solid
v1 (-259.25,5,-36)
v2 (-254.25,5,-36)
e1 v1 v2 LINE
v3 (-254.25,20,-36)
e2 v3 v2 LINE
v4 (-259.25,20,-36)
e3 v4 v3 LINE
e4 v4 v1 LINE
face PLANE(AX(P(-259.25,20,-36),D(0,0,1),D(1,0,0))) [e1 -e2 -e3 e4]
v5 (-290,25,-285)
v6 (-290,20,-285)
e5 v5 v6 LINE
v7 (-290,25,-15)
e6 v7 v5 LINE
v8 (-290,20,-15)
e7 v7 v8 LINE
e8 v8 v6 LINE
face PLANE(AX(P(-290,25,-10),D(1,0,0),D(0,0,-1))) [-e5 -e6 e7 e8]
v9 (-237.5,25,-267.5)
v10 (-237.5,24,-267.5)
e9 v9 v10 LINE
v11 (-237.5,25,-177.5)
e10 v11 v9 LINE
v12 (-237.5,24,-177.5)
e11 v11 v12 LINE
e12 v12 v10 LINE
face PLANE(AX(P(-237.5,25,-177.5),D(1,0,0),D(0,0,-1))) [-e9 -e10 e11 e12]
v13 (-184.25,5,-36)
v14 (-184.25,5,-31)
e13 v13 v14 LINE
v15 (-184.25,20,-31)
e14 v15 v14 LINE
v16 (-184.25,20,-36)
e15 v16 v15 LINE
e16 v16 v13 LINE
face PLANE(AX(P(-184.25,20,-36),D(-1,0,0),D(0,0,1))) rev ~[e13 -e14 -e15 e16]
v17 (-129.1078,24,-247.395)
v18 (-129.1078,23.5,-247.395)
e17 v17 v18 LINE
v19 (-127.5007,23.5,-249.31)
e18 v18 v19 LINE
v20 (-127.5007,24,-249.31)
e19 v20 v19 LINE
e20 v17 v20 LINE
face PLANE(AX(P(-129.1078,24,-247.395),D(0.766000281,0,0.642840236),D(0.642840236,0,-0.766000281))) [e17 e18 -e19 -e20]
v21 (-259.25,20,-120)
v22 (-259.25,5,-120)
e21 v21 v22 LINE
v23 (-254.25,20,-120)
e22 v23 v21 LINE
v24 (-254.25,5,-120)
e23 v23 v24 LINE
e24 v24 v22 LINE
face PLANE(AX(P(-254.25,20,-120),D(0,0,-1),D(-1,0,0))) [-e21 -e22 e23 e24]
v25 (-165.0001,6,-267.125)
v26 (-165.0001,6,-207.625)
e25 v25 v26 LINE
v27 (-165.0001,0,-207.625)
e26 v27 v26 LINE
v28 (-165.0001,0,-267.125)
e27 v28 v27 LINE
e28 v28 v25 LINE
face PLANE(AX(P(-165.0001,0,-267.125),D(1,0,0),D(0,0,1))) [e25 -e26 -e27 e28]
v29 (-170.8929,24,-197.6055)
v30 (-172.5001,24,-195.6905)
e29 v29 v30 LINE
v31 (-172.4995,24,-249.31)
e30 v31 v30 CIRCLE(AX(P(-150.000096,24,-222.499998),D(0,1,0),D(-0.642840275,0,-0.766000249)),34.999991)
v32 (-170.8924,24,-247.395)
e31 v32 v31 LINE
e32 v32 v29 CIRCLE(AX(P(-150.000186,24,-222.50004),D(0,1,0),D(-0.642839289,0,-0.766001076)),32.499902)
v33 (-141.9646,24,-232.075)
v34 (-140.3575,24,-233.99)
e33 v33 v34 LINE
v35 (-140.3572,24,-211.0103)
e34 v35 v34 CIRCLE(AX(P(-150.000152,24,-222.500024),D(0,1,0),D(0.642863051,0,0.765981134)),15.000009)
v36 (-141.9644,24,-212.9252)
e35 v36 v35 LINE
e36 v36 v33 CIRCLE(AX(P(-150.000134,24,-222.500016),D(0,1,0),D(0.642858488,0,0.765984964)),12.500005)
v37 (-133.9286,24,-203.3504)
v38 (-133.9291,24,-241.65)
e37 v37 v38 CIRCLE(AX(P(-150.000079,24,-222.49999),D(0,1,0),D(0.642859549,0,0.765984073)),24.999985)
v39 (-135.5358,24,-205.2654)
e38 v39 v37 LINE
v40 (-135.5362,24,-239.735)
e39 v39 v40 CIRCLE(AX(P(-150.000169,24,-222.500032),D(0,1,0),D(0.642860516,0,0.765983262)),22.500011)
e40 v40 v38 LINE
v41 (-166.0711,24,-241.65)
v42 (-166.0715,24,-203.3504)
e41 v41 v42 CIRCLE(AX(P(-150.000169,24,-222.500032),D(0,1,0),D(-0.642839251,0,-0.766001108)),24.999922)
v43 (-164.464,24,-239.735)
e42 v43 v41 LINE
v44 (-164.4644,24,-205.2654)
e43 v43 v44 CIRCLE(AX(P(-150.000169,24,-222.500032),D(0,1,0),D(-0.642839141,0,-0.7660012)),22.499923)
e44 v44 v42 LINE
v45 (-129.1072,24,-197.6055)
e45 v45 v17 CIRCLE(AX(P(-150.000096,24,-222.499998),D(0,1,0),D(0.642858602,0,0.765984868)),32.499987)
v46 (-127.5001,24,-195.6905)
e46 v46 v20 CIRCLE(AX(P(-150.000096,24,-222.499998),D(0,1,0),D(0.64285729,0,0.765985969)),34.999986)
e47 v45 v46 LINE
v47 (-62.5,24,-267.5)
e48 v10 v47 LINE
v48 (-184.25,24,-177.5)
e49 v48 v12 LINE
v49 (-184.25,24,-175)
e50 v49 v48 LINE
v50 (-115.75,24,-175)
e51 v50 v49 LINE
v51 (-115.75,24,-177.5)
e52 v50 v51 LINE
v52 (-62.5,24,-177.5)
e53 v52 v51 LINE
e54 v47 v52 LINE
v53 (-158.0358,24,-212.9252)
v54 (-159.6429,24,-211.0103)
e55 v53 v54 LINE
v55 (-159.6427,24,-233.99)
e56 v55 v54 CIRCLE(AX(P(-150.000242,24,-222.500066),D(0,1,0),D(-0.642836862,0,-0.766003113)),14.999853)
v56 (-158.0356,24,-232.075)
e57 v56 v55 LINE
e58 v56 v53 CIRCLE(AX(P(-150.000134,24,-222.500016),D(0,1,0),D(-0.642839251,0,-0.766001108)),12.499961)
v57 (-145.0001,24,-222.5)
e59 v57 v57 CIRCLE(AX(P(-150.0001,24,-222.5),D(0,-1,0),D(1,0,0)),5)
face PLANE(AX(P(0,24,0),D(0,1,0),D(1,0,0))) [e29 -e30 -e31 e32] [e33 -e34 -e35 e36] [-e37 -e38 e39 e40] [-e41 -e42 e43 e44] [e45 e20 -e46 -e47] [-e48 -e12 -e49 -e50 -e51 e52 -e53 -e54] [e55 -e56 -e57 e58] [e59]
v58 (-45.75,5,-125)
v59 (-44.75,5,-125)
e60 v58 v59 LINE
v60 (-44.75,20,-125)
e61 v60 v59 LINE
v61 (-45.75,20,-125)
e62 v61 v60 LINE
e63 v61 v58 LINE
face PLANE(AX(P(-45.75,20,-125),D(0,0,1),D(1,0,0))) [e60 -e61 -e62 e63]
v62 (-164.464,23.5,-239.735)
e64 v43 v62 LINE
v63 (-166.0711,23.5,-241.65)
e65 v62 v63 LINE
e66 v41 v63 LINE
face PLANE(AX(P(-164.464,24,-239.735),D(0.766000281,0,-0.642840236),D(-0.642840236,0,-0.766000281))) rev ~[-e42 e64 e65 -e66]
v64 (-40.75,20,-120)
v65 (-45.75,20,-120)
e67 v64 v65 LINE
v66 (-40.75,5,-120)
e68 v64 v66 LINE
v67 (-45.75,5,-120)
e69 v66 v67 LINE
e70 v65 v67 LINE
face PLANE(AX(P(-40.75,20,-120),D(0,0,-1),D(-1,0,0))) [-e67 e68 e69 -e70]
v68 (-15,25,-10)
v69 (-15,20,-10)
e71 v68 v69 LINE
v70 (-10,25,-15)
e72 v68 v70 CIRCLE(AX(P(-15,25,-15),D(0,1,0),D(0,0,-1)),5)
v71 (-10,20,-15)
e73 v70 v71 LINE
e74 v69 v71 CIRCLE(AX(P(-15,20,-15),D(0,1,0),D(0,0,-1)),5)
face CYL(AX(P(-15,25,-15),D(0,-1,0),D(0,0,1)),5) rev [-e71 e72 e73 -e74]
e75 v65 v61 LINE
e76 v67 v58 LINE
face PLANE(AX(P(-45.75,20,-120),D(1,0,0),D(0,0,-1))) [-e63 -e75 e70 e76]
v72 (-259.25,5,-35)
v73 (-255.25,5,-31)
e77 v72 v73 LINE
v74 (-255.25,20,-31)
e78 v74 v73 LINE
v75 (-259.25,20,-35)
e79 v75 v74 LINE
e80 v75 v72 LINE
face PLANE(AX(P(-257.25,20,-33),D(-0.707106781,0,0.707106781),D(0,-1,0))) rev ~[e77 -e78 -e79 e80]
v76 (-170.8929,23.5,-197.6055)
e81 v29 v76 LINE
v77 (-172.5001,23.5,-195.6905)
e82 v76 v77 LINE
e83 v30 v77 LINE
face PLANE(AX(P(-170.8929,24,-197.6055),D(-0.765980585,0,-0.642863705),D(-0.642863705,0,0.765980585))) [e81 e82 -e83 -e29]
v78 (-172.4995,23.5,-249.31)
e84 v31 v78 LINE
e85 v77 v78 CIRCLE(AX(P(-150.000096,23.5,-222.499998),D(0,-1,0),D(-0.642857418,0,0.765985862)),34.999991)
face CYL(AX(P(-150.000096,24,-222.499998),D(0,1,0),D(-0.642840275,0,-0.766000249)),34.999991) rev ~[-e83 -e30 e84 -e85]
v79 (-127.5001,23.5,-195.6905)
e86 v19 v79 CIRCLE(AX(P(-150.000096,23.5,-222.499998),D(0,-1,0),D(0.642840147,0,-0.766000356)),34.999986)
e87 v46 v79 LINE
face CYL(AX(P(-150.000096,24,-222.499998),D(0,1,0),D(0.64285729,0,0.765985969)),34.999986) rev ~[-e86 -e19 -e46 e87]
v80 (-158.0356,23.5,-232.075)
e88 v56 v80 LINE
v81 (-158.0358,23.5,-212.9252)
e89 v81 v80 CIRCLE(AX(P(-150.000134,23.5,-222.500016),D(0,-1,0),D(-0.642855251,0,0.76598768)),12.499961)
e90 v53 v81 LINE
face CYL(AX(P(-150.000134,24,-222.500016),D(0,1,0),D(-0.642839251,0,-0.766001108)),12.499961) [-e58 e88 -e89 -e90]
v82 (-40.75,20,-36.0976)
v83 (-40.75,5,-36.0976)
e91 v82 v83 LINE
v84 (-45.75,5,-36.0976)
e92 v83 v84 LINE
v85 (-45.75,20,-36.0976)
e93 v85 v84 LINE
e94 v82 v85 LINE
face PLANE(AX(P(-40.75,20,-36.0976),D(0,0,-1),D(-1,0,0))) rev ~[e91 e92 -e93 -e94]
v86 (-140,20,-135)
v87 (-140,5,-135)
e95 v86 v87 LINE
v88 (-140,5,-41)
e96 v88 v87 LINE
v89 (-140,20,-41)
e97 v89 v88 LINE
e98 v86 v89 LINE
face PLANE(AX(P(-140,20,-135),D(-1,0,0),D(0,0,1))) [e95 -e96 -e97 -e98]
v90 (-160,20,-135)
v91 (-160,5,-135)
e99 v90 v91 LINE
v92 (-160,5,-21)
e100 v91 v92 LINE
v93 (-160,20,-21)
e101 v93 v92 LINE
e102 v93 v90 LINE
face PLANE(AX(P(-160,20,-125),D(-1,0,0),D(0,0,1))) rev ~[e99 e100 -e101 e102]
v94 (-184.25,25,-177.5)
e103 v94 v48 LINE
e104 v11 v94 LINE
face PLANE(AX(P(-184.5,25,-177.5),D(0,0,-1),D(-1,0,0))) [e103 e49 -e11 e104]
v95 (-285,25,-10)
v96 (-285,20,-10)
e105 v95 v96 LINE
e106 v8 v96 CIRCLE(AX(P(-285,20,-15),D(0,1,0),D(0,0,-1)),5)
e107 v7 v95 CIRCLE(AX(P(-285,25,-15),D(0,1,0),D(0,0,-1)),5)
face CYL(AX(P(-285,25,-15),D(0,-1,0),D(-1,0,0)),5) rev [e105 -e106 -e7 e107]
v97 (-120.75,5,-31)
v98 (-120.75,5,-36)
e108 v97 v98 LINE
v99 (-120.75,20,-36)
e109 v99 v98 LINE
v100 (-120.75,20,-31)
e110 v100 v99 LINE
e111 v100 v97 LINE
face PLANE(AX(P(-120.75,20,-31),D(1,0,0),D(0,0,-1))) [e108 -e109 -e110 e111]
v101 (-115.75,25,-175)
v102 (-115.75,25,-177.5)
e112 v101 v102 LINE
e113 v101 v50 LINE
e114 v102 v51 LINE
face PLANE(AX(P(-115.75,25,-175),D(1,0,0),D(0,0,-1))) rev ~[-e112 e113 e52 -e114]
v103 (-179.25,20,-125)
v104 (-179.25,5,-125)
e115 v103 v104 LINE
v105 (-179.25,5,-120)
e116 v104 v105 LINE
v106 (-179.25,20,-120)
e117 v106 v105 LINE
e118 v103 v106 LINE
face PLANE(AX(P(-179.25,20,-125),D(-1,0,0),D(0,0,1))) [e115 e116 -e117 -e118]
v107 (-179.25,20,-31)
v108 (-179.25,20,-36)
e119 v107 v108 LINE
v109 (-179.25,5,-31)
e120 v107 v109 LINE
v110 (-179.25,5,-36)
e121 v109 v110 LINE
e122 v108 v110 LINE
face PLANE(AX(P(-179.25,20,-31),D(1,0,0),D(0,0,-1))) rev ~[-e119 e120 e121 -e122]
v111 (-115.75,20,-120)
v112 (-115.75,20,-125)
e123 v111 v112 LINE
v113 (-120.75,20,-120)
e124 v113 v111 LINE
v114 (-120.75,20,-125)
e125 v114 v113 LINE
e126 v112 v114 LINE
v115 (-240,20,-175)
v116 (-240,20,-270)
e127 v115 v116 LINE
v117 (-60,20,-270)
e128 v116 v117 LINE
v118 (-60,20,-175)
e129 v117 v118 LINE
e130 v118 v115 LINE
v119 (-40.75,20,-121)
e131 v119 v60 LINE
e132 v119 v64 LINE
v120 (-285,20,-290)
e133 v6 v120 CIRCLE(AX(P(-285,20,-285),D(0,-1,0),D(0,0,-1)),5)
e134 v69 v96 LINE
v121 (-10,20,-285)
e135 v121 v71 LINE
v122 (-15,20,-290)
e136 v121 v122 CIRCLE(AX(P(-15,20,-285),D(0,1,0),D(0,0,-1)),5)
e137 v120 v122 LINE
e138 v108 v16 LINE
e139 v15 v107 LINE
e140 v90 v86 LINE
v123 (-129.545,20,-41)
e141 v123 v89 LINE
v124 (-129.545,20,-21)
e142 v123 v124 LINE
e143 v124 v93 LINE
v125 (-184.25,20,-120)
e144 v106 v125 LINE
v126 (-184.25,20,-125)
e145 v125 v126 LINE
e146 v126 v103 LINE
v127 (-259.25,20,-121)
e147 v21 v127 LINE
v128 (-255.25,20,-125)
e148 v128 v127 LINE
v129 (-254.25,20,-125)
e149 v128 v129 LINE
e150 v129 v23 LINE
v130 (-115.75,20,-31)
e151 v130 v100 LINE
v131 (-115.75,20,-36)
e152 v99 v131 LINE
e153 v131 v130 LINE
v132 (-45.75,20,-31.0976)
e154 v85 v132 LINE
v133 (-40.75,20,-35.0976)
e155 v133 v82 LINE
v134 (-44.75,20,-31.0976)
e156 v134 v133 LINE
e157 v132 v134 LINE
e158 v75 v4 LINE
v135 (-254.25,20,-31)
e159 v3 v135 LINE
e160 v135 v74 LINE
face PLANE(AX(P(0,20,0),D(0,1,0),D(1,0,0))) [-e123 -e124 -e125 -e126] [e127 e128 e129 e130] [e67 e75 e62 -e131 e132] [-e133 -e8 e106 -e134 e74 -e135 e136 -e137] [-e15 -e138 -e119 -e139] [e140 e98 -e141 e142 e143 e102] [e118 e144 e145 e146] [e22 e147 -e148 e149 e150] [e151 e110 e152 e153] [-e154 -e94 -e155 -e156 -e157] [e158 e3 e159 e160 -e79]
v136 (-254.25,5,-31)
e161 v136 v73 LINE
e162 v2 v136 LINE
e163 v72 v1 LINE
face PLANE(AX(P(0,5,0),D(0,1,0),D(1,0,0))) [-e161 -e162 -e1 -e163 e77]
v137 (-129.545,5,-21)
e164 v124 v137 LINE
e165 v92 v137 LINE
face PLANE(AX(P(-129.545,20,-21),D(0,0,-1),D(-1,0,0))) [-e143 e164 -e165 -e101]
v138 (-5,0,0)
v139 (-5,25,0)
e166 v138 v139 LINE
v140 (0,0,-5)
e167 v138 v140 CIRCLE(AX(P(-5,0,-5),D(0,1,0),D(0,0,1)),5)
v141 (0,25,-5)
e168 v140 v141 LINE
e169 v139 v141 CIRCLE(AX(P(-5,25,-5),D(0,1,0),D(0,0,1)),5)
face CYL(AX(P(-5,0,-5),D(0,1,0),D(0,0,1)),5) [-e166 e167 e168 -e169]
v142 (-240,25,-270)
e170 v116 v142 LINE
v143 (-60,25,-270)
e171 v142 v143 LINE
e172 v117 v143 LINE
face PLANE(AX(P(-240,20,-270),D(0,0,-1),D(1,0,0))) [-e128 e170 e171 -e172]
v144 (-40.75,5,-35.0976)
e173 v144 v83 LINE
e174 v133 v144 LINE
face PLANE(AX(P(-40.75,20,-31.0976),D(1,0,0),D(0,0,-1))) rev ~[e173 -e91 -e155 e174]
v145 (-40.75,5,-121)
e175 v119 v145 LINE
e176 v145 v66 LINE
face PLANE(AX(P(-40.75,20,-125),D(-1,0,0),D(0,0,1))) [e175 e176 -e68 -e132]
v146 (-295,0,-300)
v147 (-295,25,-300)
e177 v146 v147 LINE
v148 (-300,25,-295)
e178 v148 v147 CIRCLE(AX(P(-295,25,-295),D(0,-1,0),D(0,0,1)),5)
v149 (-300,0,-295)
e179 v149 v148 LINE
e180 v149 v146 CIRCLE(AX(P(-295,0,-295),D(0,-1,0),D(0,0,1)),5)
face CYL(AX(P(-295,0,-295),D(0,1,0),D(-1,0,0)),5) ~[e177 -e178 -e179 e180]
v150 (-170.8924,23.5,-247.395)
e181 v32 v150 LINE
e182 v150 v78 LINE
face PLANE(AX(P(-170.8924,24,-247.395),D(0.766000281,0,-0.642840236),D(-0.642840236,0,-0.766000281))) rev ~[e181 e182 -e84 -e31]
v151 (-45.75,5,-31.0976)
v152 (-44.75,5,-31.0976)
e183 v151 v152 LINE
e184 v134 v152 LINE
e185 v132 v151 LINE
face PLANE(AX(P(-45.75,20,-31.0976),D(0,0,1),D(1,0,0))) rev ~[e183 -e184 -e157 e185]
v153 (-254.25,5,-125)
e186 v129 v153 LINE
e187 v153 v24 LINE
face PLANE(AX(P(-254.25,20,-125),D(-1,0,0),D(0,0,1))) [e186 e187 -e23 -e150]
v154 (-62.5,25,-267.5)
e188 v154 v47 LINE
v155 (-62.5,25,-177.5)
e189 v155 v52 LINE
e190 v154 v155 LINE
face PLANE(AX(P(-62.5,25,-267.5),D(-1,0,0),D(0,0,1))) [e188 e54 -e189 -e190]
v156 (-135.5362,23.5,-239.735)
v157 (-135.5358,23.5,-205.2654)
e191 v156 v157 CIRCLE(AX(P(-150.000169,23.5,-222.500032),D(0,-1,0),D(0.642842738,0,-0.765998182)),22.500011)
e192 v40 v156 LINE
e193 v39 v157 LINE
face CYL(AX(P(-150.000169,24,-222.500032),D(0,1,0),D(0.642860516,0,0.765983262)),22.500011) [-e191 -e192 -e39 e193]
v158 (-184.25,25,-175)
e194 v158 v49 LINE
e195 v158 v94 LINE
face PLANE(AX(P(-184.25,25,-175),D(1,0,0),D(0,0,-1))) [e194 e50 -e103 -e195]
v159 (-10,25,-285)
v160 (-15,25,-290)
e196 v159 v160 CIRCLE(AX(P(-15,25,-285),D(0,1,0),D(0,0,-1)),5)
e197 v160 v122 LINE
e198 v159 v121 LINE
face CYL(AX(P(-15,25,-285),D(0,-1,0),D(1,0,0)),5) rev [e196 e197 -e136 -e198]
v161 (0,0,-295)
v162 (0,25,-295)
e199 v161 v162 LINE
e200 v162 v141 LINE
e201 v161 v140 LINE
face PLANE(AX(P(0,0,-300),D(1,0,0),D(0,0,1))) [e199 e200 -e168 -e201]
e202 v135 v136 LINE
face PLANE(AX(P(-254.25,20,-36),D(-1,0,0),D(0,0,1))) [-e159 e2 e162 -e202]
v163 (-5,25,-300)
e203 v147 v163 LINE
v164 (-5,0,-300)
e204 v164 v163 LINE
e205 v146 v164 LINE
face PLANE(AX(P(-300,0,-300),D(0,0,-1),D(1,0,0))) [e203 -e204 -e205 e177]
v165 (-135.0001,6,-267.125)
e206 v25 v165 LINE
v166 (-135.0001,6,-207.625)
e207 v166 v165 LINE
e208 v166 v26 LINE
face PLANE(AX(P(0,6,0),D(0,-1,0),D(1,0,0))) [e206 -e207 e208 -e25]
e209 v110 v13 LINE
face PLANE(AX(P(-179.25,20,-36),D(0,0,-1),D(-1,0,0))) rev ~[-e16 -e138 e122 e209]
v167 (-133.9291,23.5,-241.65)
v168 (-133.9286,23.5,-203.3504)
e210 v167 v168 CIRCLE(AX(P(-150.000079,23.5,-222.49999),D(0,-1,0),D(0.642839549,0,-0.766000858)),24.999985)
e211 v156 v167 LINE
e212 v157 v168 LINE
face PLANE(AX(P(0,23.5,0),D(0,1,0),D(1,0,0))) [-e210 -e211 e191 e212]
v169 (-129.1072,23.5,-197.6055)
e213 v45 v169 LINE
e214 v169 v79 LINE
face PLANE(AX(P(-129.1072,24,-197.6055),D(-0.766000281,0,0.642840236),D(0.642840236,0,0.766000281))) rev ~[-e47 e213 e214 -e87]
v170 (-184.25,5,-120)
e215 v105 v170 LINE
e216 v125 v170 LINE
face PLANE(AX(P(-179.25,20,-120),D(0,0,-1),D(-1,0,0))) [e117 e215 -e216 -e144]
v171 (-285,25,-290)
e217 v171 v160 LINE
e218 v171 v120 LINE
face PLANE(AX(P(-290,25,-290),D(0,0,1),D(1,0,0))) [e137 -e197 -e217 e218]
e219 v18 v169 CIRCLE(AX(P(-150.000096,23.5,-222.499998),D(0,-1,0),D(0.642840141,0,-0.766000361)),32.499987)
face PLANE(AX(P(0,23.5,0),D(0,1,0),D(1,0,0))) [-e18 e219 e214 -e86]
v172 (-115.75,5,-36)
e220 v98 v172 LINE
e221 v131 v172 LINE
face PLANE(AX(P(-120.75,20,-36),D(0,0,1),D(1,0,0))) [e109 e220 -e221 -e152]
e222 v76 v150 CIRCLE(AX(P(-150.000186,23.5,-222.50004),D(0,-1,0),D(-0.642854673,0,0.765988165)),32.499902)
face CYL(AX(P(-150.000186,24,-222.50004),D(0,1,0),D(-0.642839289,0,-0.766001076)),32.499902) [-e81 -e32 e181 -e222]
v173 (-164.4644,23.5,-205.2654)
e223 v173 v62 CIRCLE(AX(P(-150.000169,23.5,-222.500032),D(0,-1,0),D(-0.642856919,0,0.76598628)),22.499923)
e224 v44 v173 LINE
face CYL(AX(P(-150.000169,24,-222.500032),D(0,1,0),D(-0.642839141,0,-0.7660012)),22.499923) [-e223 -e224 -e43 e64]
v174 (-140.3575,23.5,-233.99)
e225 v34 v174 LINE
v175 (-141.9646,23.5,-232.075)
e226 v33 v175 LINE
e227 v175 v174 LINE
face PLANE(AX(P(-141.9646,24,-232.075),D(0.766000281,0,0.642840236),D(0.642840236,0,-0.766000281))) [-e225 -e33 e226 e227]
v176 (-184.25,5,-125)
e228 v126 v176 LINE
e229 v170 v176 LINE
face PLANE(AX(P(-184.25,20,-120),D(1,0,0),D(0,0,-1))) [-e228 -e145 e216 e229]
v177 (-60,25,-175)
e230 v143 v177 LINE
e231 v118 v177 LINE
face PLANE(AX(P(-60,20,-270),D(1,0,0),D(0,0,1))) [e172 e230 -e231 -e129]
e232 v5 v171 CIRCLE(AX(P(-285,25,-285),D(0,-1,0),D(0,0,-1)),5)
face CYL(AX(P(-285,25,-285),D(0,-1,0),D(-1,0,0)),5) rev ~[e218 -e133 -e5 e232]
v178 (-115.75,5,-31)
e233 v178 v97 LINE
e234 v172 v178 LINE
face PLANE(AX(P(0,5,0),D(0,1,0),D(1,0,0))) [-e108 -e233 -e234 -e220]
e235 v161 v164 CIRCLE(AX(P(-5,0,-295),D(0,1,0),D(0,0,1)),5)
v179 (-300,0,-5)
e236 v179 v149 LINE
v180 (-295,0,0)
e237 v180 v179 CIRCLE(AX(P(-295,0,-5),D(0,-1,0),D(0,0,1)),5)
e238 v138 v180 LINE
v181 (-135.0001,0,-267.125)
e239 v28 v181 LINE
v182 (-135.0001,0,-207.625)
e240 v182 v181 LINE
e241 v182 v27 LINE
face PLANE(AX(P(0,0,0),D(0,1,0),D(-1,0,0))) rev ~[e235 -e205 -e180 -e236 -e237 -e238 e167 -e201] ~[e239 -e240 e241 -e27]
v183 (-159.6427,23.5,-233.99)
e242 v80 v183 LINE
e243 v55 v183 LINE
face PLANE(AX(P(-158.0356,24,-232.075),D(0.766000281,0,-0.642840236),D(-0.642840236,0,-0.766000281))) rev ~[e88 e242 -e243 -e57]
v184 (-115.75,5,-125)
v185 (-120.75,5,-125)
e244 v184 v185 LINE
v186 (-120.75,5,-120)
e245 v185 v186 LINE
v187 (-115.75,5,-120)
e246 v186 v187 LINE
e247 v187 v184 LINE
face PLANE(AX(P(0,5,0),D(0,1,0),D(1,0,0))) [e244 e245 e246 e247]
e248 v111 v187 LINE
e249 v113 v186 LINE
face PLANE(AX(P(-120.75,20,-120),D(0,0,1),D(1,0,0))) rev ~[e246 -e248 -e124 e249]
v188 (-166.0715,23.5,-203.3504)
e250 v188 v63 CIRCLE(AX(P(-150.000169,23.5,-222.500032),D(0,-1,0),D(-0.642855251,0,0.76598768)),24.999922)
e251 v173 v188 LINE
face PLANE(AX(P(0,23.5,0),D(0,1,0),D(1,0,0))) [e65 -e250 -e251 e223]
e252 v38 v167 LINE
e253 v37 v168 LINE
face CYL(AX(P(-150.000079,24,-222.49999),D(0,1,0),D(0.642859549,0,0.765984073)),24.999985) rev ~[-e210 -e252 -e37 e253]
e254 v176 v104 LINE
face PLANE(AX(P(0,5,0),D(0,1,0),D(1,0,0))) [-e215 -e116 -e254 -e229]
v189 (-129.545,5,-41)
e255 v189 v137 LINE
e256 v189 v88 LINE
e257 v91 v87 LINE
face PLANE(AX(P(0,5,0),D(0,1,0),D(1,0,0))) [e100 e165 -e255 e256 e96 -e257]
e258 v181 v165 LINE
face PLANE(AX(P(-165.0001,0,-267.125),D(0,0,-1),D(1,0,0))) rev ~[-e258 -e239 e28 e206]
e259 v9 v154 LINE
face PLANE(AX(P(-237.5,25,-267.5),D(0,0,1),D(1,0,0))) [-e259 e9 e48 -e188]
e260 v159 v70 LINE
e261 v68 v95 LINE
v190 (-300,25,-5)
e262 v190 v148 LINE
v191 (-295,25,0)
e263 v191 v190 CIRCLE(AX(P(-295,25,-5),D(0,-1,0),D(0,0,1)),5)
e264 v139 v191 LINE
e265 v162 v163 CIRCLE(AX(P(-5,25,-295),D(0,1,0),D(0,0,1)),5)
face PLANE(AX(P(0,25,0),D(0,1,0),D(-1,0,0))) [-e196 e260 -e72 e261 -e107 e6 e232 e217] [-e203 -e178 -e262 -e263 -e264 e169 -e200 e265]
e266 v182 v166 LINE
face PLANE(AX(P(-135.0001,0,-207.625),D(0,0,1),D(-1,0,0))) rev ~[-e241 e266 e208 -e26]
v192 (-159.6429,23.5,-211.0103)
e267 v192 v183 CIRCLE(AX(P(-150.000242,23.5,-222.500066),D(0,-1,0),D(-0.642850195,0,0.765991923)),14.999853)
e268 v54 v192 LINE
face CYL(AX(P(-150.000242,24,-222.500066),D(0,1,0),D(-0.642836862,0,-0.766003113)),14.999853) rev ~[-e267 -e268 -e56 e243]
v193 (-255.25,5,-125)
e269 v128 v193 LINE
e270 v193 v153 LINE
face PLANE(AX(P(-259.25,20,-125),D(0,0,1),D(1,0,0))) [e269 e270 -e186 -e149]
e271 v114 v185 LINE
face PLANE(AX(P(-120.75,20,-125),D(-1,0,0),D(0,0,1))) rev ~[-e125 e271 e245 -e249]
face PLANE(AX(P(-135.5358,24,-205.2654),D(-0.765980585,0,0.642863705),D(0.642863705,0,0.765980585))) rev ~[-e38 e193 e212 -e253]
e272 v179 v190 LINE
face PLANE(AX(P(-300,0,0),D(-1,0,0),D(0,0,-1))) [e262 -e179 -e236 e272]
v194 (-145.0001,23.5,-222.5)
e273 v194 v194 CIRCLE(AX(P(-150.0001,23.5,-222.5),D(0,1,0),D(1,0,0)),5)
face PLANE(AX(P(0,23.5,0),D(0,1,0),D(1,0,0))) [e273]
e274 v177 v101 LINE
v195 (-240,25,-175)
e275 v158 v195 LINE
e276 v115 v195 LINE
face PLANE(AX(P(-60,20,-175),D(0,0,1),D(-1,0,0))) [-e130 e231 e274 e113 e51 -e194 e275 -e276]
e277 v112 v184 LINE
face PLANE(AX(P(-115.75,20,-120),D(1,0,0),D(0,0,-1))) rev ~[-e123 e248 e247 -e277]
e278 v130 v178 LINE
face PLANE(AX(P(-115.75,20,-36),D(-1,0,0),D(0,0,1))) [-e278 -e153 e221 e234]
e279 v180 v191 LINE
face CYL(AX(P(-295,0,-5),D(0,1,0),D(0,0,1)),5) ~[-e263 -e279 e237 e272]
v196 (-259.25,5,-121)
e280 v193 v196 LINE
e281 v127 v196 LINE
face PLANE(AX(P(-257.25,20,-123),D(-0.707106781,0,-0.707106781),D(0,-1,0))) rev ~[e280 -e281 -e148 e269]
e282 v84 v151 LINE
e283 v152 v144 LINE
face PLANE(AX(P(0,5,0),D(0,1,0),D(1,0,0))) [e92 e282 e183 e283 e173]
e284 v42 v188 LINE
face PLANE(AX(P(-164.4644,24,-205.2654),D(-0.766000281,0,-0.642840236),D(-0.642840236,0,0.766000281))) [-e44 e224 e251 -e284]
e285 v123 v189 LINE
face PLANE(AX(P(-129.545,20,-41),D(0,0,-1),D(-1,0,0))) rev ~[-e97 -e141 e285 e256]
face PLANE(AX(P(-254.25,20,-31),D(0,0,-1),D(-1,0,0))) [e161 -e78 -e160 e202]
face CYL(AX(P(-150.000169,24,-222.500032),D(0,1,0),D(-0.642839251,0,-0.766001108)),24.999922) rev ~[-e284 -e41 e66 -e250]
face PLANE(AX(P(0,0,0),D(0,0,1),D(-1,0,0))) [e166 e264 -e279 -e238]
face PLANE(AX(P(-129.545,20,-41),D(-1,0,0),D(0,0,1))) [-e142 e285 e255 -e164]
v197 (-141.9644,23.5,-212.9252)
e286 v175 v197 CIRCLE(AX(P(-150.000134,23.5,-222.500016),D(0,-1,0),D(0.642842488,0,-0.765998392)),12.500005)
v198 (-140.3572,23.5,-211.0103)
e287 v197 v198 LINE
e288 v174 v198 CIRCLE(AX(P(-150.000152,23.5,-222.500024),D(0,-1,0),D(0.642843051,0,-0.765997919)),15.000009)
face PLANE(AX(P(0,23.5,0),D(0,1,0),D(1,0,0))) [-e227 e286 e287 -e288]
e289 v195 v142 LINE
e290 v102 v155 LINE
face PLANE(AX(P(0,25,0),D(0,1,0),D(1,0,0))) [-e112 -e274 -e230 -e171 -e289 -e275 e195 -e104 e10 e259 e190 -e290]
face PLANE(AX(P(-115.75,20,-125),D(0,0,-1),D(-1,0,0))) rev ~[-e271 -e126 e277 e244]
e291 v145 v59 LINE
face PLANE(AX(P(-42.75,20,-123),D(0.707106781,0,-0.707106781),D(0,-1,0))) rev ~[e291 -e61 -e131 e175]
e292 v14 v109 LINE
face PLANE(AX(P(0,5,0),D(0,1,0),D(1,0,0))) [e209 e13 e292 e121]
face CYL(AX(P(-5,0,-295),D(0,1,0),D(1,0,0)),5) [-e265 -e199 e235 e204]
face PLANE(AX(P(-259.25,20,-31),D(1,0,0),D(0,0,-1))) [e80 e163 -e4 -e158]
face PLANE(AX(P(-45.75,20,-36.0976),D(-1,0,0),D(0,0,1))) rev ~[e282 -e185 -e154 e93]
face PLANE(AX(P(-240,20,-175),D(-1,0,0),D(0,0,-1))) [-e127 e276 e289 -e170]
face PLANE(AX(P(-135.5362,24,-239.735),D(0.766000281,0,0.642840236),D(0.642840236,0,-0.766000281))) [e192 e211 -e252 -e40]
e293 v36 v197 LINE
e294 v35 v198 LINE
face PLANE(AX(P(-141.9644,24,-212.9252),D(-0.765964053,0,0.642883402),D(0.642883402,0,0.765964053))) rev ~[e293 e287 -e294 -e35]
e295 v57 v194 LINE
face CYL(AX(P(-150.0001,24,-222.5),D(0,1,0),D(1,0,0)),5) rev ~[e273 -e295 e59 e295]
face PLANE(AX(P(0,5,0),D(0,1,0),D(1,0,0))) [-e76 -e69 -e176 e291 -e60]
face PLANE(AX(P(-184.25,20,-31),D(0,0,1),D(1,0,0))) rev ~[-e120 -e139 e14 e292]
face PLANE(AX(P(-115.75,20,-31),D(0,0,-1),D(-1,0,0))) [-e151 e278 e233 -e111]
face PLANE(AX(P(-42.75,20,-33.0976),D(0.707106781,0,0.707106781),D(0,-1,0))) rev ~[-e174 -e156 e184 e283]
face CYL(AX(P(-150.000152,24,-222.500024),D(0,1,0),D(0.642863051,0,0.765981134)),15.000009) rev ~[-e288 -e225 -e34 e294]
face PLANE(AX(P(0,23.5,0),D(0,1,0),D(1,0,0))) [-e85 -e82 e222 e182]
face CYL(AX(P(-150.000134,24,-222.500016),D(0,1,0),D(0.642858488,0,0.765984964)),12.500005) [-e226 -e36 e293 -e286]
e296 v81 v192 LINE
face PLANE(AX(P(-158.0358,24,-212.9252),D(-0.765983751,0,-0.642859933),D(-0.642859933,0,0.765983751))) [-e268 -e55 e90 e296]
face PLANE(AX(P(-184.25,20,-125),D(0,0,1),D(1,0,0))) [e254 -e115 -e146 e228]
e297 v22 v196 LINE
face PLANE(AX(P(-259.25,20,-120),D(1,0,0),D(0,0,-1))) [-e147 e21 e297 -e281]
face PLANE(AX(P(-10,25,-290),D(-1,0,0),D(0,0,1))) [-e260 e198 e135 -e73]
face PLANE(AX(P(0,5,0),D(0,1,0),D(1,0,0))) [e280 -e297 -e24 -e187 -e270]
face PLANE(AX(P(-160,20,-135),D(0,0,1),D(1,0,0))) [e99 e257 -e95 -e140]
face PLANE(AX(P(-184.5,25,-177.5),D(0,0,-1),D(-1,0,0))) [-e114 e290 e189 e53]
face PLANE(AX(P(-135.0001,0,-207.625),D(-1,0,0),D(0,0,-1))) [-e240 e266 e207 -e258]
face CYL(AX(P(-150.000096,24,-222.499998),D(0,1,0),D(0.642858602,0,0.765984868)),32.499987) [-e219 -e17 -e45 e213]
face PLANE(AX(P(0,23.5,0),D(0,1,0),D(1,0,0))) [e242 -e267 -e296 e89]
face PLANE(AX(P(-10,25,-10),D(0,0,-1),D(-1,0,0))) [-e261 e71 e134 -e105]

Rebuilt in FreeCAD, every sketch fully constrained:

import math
import FreeCAD as App
import Part
import Sketcher

V = App.Vector
Q = App.Units.Quantity


def edges_at(feature, points):
    """Names of the edges that pass closest to the given points."""
    edges = feature.Shape.Edges
    near = lambda p: min(range(len(edges)), key=lambda i: edges[i].distToShape(Part.Vertex(*p))[0])
    return sorted({f"Edge{near(p) + 1}" for p in points})


def add_polygon(sketch, points):
    """Adds a closed chain of lines whose ends are joined by coincident constraints."""
    first, n = sketch.GeometryCount, len(points)
    for a, b in zip(points, points[1:] + points[:1]):
        sketch.addGeometry(Part.LineSegment(App.Vector(*a, 0), App.Vector(*b, 0)), False)
    for i in range(n):
        sketch.addConstraint(Sketcher.Constraint("Coincident", first + i, 2, first + (i + 1) % n, 1))

doc = App.newDocument("Part")
params = doc.addObject("Spreadsheet::Sheet", "Params")
for row, (alias, value) in enumerate([
    ("sketch1_width", "300 mm"),
    ("pad1_length", "25 mm"),
    ("sketch2_width", "280 mm"),
    ("pocket1_length", "5 mm"),
    ("fillet_radius", "5 mm"),
    ("fillet2_radius", "5 mm"),
    ("sketch3_height", "95 mm"),
    ("sketch3_width", "180 mm"),
    ("pad2_length", "5 mm"),
    ("sketch4_width", "175 mm"),
    ("sketch4_height", "90 mm"),
    ("pocket2_length", "1 mm"),
    ("sketch5_diameter", "10 mm"),
    ("sketch5_radius", "35 mm"),
    ("sketch5_radius2", "25 mm"),
    ("sketch5_radius3", "15 mm"),
    ("sketch5_radius4", "32.5 mm"),
    ("pocket3_length", "0.5 mm"),
    ("sketch6_width", "68.5 mm"),
    ("sketch6_height", "2.5 mm"),
    ("pocket4_length", "1 mm"),
    ("sketch7_width", "30 mm"),
    ("sketch7_height", "59.5 mm"),
    ("pocket5_length", "6 mm"),
    ("sketch8_width", "5 mm"),
    ("sketch8_height", "94 mm"),
    ("pocket6_length", "15 mm"),
    ("sketch9_width", "5 mm"),
    ("pocket7_length", "15 mm"),
    ("chamfer_size", "4 mm"),
    ("chamfer2_size", "4 mm"),
], start=1):
    params.set(f"A{row}", alias)
    params.set(f"B{row}", "=" + value)
    params.setAlias(f"B{row}", alias)

body = doc.addObject("PartDesign::Body", "Body")

sketch1 = body.newObject("Sketcher::SketchObject", "Sketch")
sketch1.AttachmentSupport = (doc.getObject("XZ_Plane"), [""])
sketch1.MapMode = "FlatFace"
add_polygon(sketch1, [(-300, 0), (0, 0), (0, -300), (-300, -300)])
sketch1.addConstraint([
    Sketcher.Constraint("Horizontal", 0),
    Sketcher.Constraint("Vertical", 1),
    Sketcher.Constraint("Horizontal", 2),
    Sketcher.Constraint("Vertical", 3),
    Sketcher.Constraint("Coincident", 0, 2, -1, 1),
    Sketcher.Constraint("Equal", 2, 1),
    Sketcher.Constraint("DistanceX", 0, 1, 0, 2, Q("300 mm")),
])
sketch1.setExpression("Constraints[10]", "Params.sketch1_width")
pad1 = body.newObject("PartDesign::Pad", "Pad")
pad1.Profile = sketch1
pad1.setExpression("Length", "Params.pad1_length")
pad1.Reversed = True

sketch2 = body.newObject("Sketcher::SketchObject", "Sketch001")
sketch2.AttachmentSupport = (doc.getObject("XZ_Plane"), [""])
sketch2.MapMode = "FlatFace"
sketch2.AttachmentOffset = App.Placement(V(0, 0, -25), App.Rotation())
add_polygon(sketch2, [(-10, -290), (-290, -290), (-290, -10), (-10, -10)])
sketch2.addConstraint([
    Sketcher.Constraint("Horizontal", 0),
    Sketcher.Constraint("Vertical", 1),
    Sketcher.Constraint("Horizontal", 2),
    Sketcher.Constraint("Vertical", 3),
    Sketcher.Constraint("Equal", 2, 1),
    Sketcher.Constraint("DistanceY", 1, 2, -1, 1, Q("10 mm")),
    Sketcher.Constraint("DistanceX", 2, 2, -1, 1, Q("10 mm")),
    Sketcher.Constraint("DistanceX", 0, 2, 0, 1, Q("280 mm")),
])
sketch2.setExpression("Constraints[11]", "Params.sketch2_width")
pocket1 = body.newObject("PartDesign::Pocket", "Pocket")
pocket1.Profile = sketch2
pocket1.setExpression("Length", "Params.pocket1_length")
pocket1.Reversed = True
doc.recompute()

fillet = body.newObject("PartDesign::Fillet", "Fillet")
fillet.Base = (pocket1, edges_at(pocket1, [
    (-300, 12.5, 0),
    (0, 12.5, 0),
    (0, 12.5, -300),
    (-300, 12.5, -300),
]))
fillet.setExpression("Radius", "Params.fillet_radius")
doc.recompute()

fillet2 = body.newObject("PartDesign::Fillet", "Fillet001")
fillet2.Base = (fillet, edges_at(fillet, [
    (-290, 22.5, -290),
    (-10, 22.5, -290),
    (-10, 22.5, -10),
    (-290, 22.5, -10),
]))
fillet2.setExpression("Radius", "Params.fillet2_radius")

sketch3 = body.newObject("Sketcher::SketchObject", "Sketch002")
sketch3.AttachmentSupport = (doc.getObject("XZ_Plane"), [""])
sketch3.MapMode = "FlatFace"
sketch3.AttachmentOffset = App.Placement(V(0, 0, -20), App.Rotation())
add_polygon(sketch3, [(-60, -270), (-240, -270), (-240, -175), (-60, -175)])
sketch3.addConstraint([
    Sketcher.Constraint("Horizontal", 0),
    Sketcher.Constraint("Vertical", 1),
    Sketcher.Constraint("Horizontal", 2),
    Sketcher.Constraint("Vertical", 3),
    Sketcher.Constraint("DistanceY", 1, 1, 1, 2, Q("95 mm")),
    Sketcher.Constraint("DistanceX", 0, 2, 0, 1, Q("180 mm")),
    Sketcher.Constraint("DistanceX", 0, 2, -1, 1, Q("240 mm")),
    Sketcher.Constraint("DistanceY", 0, 2, -1, 1, Q("270 mm")),
])
sketch3.setExpression("Constraints[8]", "Params.sketch3_height")
sketch3.setExpression("Constraints[9]", "Params.sketch3_width")
pad2 = body.newObject("PartDesign::Pad", "Pad001")
pad2.Profile = sketch3
pad2.setExpression("Length", "Params.pad2_length")
pad2.Reversed = True

sketch4 = body.newObject("Sketcher::SketchObject", "Sketch003")
sketch4.AttachmentSupport = (doc.getObject("XZ_Plane"), [""])
sketch4.MapMode = "FlatFace"
sketch4.AttachmentOffset = App.Placement(V(0, 0, -25), App.Rotation())
add_polygon(sketch4, [(-62, -268), (-238, -268), (-238, -178), (-62, -178)])
sketch4.addConstraint([
    Sketcher.Constraint("Horizontal", 0),
    Sketcher.Constraint("Vertical", 1),
    Sketcher.Constraint("Horizontal", 2),
    Sketcher.Constraint("Vertical", 3),
    Sketcher.Constraint("DistanceX", 0, 2, 0, 1, Q("175 mm")),
    Sketcher.Constraint("DistanceY", 1, 1, 1, 2, Q("90 mm")),
    Sketcher.Constraint("DistanceX", 0, 2, -1, 1, Q("237.5 mm")),
    Sketcher.Constraint("DistanceY", 0, 2, -1, 1, Q("267.5 mm")),
])
sketch4.setExpression("Constraints[8]", "Params.sketch4_width")
sketch4.setExpression("Constraints[9]", "Params.sketch4_height")
pocket2 = body.newObject("PartDesign::Pocket", "Pocket001")
pocket2.Profile = sketch4
pocket2.setExpression("Length", "Params.pocket2_length")
pocket2.Reversed = True

sketch5 = body.newObject("Sketcher::SketchObject", "Sketch004")
sketch5.AttachmentSupport = (doc.getObject("XZ_Plane"), [""])
sketch5.MapMode = "FlatFace"
sketch5.AttachmentOffset = App.Placement(V(0, 0, -24), App.Rotation())
sketch5.addGeometry([
    Part.Circle(V(-150, -222.5, 0), V(0, 0, 1), 5),
    Part.ArcOfCircle(Part.Circle(V(-150, -222.5, 0), V(0, 0, 1), 32.5), math.radians(130), math.radians(230)),
    Part.LineSegment(V(-170.9, -247.4, 0), V(-172.5, -249.3, 0)),
    Part.ArcOfCircle(Part.Circle(V(-150, -222.5, 0), V(0, 0, 1), 35), math.radians(130), math.radians(230)),
    Part.LineSegment(V(-172.5, -195.7, 0), V(-170.9, -197.6, 0)),
    Part.ArcOfCircle(Part.Circle(V(-150, -222.5, 0), V(0, 0, 1), 22.5), math.radians(130), math.radians(230)),
    Part.LineSegment(V(-164.5, -239.7, 0), V(-166.1, -241.7, 0)),
    Part.ArcOfCircle(Part.Circle(V(-150, -222.5, 0), V(0, 0, 1), 25), math.radians(130), math.radians(230)),
    Part.LineSegment(V(-166.1, -203.4, 0), V(-164.5, -205.3, 0)),
    Part.ArcOfCircle(Part.Circle(V(-150, -222.5, 0), V(0, 0, 1), 12.5), math.radians(130), math.radians(230)),
    Part.LineSegment(V(-158, -232.1, 0), V(-159.6, -234, 0)),
    Part.ArcOfCircle(Part.Circle(V(-150, -222.5, 0), V(0, 0, 1), 15), math.radians(130), math.radians(230)),
    Part.LineSegment(V(-159.6, -211, 0), V(-158, -212.9, 0)),
    Part.ArcOfCircle(Part.Circle(V(-150, -222.5, 0), V(0, 0, 1), 32.5), math.radians(-50), math.radians(50)),
    Part.LineSegment(V(-129.1, -197.6, 0), V(-127.5, -195.7, 0)),
    Part.ArcOfCircle(Part.Circle(V(-150, -222.5, 0), V(0, 0, 1), 35), math.radians(-50), math.radians(50)),
    Part.LineSegment(V(-127.5, -249.3, 0), V(-129.1, -247.4, 0)),
    Part.ArcOfCircle(Part.Circle(V(-150, -222.5, 0), V(0, 0, 1), 22.5), math.radians(-50), math.radians(50)),
    Part.LineSegment(V(-135.5, -205.3, 0), V(-133.9, -203.4, 0)),
    Part.ArcOfCircle(Part.Circle(V(-150, -222.5, 0), V(0, 0, 1), 25), math.radians(-50), math.radians(50)),
    Part.LineSegment(V(-133.9, -241.7, 0), V(-135.5, -239.7, 0)),
    Part.ArcOfCircle(Part.Circle(V(-150, -222.5, 0), V(0, 0, 1), 12.5), math.radians(-50), math.radians(50)),
    Part.LineSegment(V(-142, -212.9, 0), V(-140.4, -211, 0)),
    Part.ArcOfCircle(Part.Circle(V(-150, -222.5, 0), V(0, 0, 1), 15), math.radians(-50), math.radians(50)),
    Part.LineSegment(V(-140.4, -234, 0), V(-142, -232.1, 0)),
], False)
sketch5.addConstraint([
    Sketcher.Constraint("Coincident", 1, 2, 2, 1),
    Sketcher.Constraint("Coincident", 2, 2, 3, 2),
    Sketcher.Constraint("Coincident", 3, 1, 4, 1),
    Sketcher.Constraint("Coincident", 4, 2, 1, 1),
    Sketcher.Constraint("Coincident", 5, 2, 6, 1),
    Sketcher.Constraint("Coincident", 6, 2, 7, 2),
    Sketcher.Constraint("Coincident", 7, 1, 8, 1),
    Sketcher.Constraint("Coincident", 8, 2, 5, 1),
    Sketcher.Constraint("Coincident", 9, 2, 10, 1),
    Sketcher.Constraint("Coincident", 10, 2, 11, 2),
    Sketcher.Constraint("Coincident", 11, 1, 12, 1),
    Sketcher.Constraint("Coincident", 12, 2, 9, 1),
    Sketcher.Constraint("Coincident", 13, 2, 14, 1),
    Sketcher.Constraint("Coincident", 14, 2, 15, 2),
    Sketcher.Constraint("Coincident", 15, 1, 16, 1),
    Sketcher.Constraint("Coincident", 16, 2, 13, 1),
    Sketcher.Constraint("Coincident", 17, 2, 18, 1),
    Sketcher.Constraint("Coincident", 18, 2, 19, 2),
    Sketcher.Constraint("Coincident", 19, 1, 20, 1),
    Sketcher.Constraint("Coincident", 20, 2, 17, 1),
    Sketcher.Constraint("Coincident", 21, 2, 22, 1),
    Sketcher.Constraint("Coincident", 22, 2, 23, 2),
    Sketcher.Constraint("Coincident", 23, 1, 24, 1),
    Sketcher.Constraint("Coincident", 24, 2, 21, 1),
    Sketcher.Constraint("Coincident", 1, 3, 0, 3),
    Sketcher.Constraint("Coincident", 3, 3, 0, 3),
    Sketcher.Constraint("Coincident", 5, 3, 0, 3),
    Sketcher.Constraint("Coincident", 7, 3, 0, 3),
    Sketcher.Constraint("Coincident", 9, 3, 0, 3),
    Sketcher.Constraint("Coincident", 11, 3, 0, 3),
    Sketcher.Constraint("Coincident", 13, 3, 0, 3),
    Sketcher.Constraint("Coincident", 15, 3, 0, 3),
    Sketcher.Constraint("Coincident", 17, 3, 0, 3),
    Sketcher.Constraint("Coincident", 19, 3, 0, 3),
    Sketcher.Constraint("Coincident", 21, 3, 0, 3),
    Sketcher.Constraint("Coincident", 23, 3, 0, 3),
    Sketcher.Constraint("Equal", 1, 13),
    Sketcher.Constraint("Equal", 3, 15),
    Sketcher.Constraint("Equal", 5, 17),
    Sketcher.Constraint("Equal", 7, 19),
    Sketcher.Constraint("Equal", 9, 21),
    Sketcher.Constraint("Equal", 11, 23),
    Sketcher.Constraint("Parallel", 2, 6),
    Sketcher.Constraint("Parallel", 4, 8),
    Sketcher.Constraint("Parallel", 6, 10),
    Sketcher.Constraint("Parallel", 8, 12),
    Sketcher.Constraint("Parallel", 10, 14),
    Sketcher.Constraint("Parallel", 12, 16),
    Sketcher.Constraint("Parallel", 14, 18),
    Sketcher.Constraint("Parallel", 16, 20),
    Sketcher.Constraint("Parallel", 18, 22),
    Sketcher.Constraint("Parallel", 20, 24),
    Sketcher.Constraint("Horizontal", 4, 2, 13, 2),
    Sketcher.Constraint("Horizontal", 3, 1, 14, 2),
    Sketcher.Constraint("Horizontal", 2, 2, 15, 1),
    Sketcher.Constraint("Horizontal", 8, 2, 17, 2),
    Sketcher.Constraint("Horizontal", 6, 2, 19, 1),
    Sketcher.Constraint("Horizontal", 12, 2, 21, 2),
    Sketcher.Constraint("Horizontal", 10, 2, 23, 1),
    Sketcher.Constraint("Equal", 4, 6),
    Sketcher.Constraint("Equal", 8, 10),
    Sketcher.Constraint("Diameter", 0, Q("10 mm")),
    Sketcher.Constraint("Radius", 3, Q("35 mm")),
    Sketcher.Constraint("Radius", 7, Q("25 mm")),
    Sketcher.Constraint("Radius", 11, Q("15 mm")),
    Sketcher.Constraint("Radius", 1, Q("32.5 mm")),
    Sketcher.Constraint("DistanceX", 0, 3, -1, 1, Q("150 mm")),
    Sketcher.Constraint("DistanceY", 0, 3, -1, 1, Q("222.5 mm")),
    Sketcher.Constraint("DistanceX", 3, 1, -1, 1, Q("172.5 mm")),
    Sketcher.Constraint("DistanceY", 2, 2, -1, 1, Q("249.31 mm")),
    Sketcher.Constraint("DistanceY", 6, 2, -1, 1, Q("241.65 mm")),
    Sketcher.Constraint("DistanceY", 10, 2, -1, 1, Q("233.99 mm")),
    Sketcher.Constraint("DistanceY", 8, 2, 4, 2, Q("7.66 mm")),
    Sketcher.Constraint("DistanceY", 11, 1, 7, 1, Q("7.66 mm")),
    Sketcher.Constraint("DistanceY", 1, 2, -1, 1, Q("247.395 mm")),
])
sketch5.setExpression("Constraints[61]", "Params.sketch5_diameter")
sketch5.setExpression("Constraints[62]", "Params.sketch5_radius")
sketch5.setExpression("Constraints[63]", "Params.sketch5_radius2")
sketch5.setExpression("Constraints[64]", "Params.sketch5_radius3")
sketch5.setExpression("Constraints[65]", "Params.sketch5_radius4")
pocket3 = body.newObject("PartDesign::Pocket", "Pocket002")
pocket3.Profile = sketch5
pocket3.setExpression("Length", "Params.pocket3_length")
pocket3.Reversed = True

sketch6 = body.newObject("Sketcher::SketchObject", "Sketch005")
sketch6.AttachmentSupport = (doc.getObject("XZ_Plane"), [""])
sketch6.MapMode = "FlatFace"
sketch6.AttachmentOffset = App.Placement(V(0, 0, -25), App.Rotation())
add_polygon(sketch6, [(-184.2, -177.5), (-184.2, -175), (-115.8, -175), (-115.8, -177.5)])
sketch6.addConstraint([
    Sketcher.Constraint("Vertical", 0),
    Sketcher.Constraint("Horizontal", 1),
    Sketcher.Constraint("Vertical", 2),
    Sketcher.Constraint("Horizontal", 3),
    Sketcher.Constraint("DistanceX", 1, 1, 1, 2, Q("68.5 mm")),
    Sketcher.Constraint("DistanceY", 0, 1, 0, 2, Q("2.5 mm")),
    Sketcher.Constraint("DistanceY", 0, 2, -1, 1, Q("175 mm")),
    Sketcher.Constraint("DistanceX", 0, 2, -1, 1, Q("184.25 mm")),
])
sketch6.setExpression("Constraints[8]", "Params.sketch6_width")
sketch6.setExpression("Constraints[9]", "Params.sketch6_height")
pocket4 = body.newObject("PartDesign::Pocket", "Pocket003")
pocket4.Profile = sketch6
pocket4.setExpression("Length", "Params.pocket4_length")
pocket4.Reversed = True

sketch7 = body.newObject("Sketcher::SketchObject", "Sketch006")
sketch7.AttachmentSupport = (doc.getObject("XZ_Plane"), [""])
sketch7.MapMode = "FlatFace"
add_polygon(sketch7, [(-135, -267), (-135, -208), (-165, -208), (-165, -267)])
sketch7.addConstraint([
    Sketcher.Constraint("Vertical", 0),
    Sketcher.Constraint("Horizontal", 1),
    Sketcher.Constraint("Vertical", 2),
    Sketcher.Constraint("Horizontal", 3),
    Sketcher.Constraint("DistanceX", 1, 2, 1, 1, Q("30 mm")),
    Sketcher.Constraint("DistanceY", 0, 1, 0, 2, Q("59.5 mm")),
    Sketcher.Constraint("DistanceX", 0, 2, -1, 1, Q("135 mm")),
    Sketcher.Constraint("DistanceY", 0, 2, -1, 1, Q("207.625 mm")),
])
sketch7.setExpression("Constraints[8]", "Params.sketch7_width")
sketch7.setExpression("Constraints[9]", "Params.sketch7_height")
pocket5 = body.newObject("PartDesign::Pocket", "Pocket004")
pocket5.Profile = sketch7
pocket5.setExpression("Length", "Params.pocket5_length")

sketch8 = body.newObject("Sketcher::SketchObject", "Sketch007")
sketch8.AttachmentSupport = (doc.getObject("XZ_Plane"), [""])
sketch8.MapMode = "FlatFace"
sketch8.AttachmentOffset = App.Placement(V(0, 0, -20), App.Rotation())
add_polygon(sketch8, [(-184, -36), (-184, -31), (-179, -31), (-179, -36)])
add_polygon(sketch8, [(-121, -31), (-116, -31), (-116, -36), (-121, -36)])
add_polygon(sketch8, [(-116, -120), (-116, -125), (-121, -125), (-121, -120)])
add_polygon(sketch8, [(-179, -125), (-184, -125), (-184, -120), (-179, -120)])
add_polygon(sketch8, [(-160, -135), (-160, -21), (-130, -21), (-130, -41), (-140, -41), (-140, -135)])
sketch8.addConstraint([
    Sketcher.Constraint("Vertical", 0),
    Sketcher.Constraint("Horizontal", 1),
    Sketcher.Constraint("Vertical", 2),
    Sketcher.Constraint("Horizontal", 3),
    Sketcher.Constraint("Horizontal", 4),
    Sketcher.Constraint("Vertical", 5),
    Sketcher.Constraint("Horizontal", 6),
    Sketcher.Constraint("Vertical", 7),
    Sketcher.Constraint("Vertical", 8),
    Sketcher.Constraint("Horizontal", 9),
    Sketcher.Constraint("Vertical", 10),
    Sketcher.Constraint("Horizontal", 11),
    Sketcher.Constraint("Horizontal", 12),
    Sketcher.Constraint("Vertical", 13),
    Sketcher.Constraint("Horizontal", 14),
    Sketcher.Constraint("Vertical", 15),
    Sketcher.Constraint("Vertical", 16),
    Sketcher.Constraint("Horizontal", 17),
    Sketcher.Constraint("Vertical", 18),
    Sketcher.Constraint("Horizontal", 19),
    Sketcher.Constraint("Vertical", 20),
    Sketcher.Constraint("Horizontal", 21),
    Sketcher.Constraint("Horizontal", 1, 2, 4, 2),
    Sketcher.Constraint("Horizontal", 3, 2, 5, 2),
    Sketcher.Constraint("Horizontal", 9, 2, 12, 2),
    Sketcher.Constraint("Horizontal", 11, 2, 13, 2),
    Sketcher.Constraint("Vertical", 5, 2, 8, 2),
    Sketcher.Constraint("Vertical", 7, 2, 9, 2),
    Sketcher.Constraint("Vertical", 3, 2, 12, 2),
    Sketcher.Constraint("Vertical", 2, 2, 14, 2),
    Sketcher.Constraint("Equal", 3, 4),
    Sketcher.Constraint("Equal", 14, 0),
    Sketcher.Constraint("Equal", 7, 8),
    Sketcher.Constraint("Equal", 21, 18),
    Sketcher.Constraint("DistanceX", 1, 1, 1, 2, Q("5 mm")),
    Sketcher.Constraint("DistanceY", 20, 2, 20, 1, Q("94 mm")),
    Sketcher.Constraint("DistanceY", 8, 2, 4, 2, Q("94 mm")),
    Sketcher.Constraint("DistanceY", 1, 2, 16, 2, Q("10 mm")),
    Sketcher.Constraint("DistanceY", 18, 2, 6, 2, Q("5 mm")),
    Sketcher.Constraint("DistanceY", 0, 2, -1, 1, Q("31 mm")),
    Sketcher.Constraint("DistanceX", 16, 2, -1, 1, Q("160 mm")),
    Sketcher.Constraint("DistanceX", 1, 2, 4, 2, Q("63.5 mm")),
    Sketcher.Constraint("DistanceX", 17, 1, 17, 2, Q("30.455 mm")),
    Sketcher.Constraint("DistanceX", 0, 2, -1, 1, Q("184.25 mm")),
])
sketch8.setExpression("Constraints[56]", "Params.sketch8_width")
sketch8.setExpression("Constraints[57]", "Params.sketch8_height")
pocket6 = body.newObject("PartDesign::Pocket", "Pocket005")
pocket6.Profile = sketch8
pocket6.setExpression("Length", "Params.pocket6_length")
pocket6.Reversed = True

sketch9 = body.newObject("Sketcher::SketchObject", "Sketch008")
sketch9.AttachmentSupport = (doc.getObject("XZ_Plane"), [""])
sketch9.MapMode = "FlatFace"
sketch9.AttachmentOffset = App.Placement(V(0, 0, -20), App.Rotation())
add_polygon(sketch9, [(-41, -125), (-46, -125), (-46, -120), (-41, -120)])
add_polygon(sketch9, [(-46, -36), (-46, -31), (-41, -31), (-41, -36)])
add_polygon(sketch9, [(-254, -120), (-254, -125), (-259, -125), (-259, -120)])
add_polygon(sketch9, [(-254, -31), (-254, -36), (-259, -36), (-259, -31)])
sketch9.addConstraint([
    Sketcher.Constraint("Horizontal", 0),
    Sketcher.Constraint("Vertical", 1),
    Sketcher.Constraint("Horizontal", 2),
    Sketcher.Constraint("Vertical", 3),
    Sketcher.Constraint("Vertical", 4),
    Sketcher.Constraint("Horizontal", 5),
    Sketcher.Constraint("Vertical", 6),
    Sketcher.Constraint("Horizontal", 7),
    Sketcher.Constraint("Vertical", 8),
    Sketcher.Constraint("Horizontal", 9),
    Sketcher.Constraint("Vertical", 10),
    Sketcher.Constraint("Horizontal", 11),
    Sketcher.Constraint("Vertical", 12),
    Sketcher.Constraint("Horizontal", 13),
    Sketcher.Constraint("Vertical", 14),
    Sketcher.Constraint("Horizontal", 15),
    Sketcher.Constraint("Horizontal", 3, 2, 8, 2),
    Sketcher.Constraint("Horizontal", 2, 2, 10, 2),
    Sketcher.Constraint("Vertical", 1, 2, 4, 2),
    Sketcher.Constraint("Vertical", 3, 2, 5, 2),
    Sketcher.Constraint("Vertical", 11, 2, 12, 2),
    Sketcher.Constraint("Vertical", 10, 2, 13, 2),
    Sketcher.Constraint("Equal", 7, 9),
    Sketcher.Constraint("Equal", 15, 1),
    Sketcher.Constraint("Equal", 3, 4),
    Sketcher.Constraint("Equal", 10, 12),
    Sketcher.Constraint("DistanceX", 0, 2, 0, 1, Q("5 mm")),
    Sketcher.Constraint("DistanceY", 0, 2, -1, 1, Q("125 mm")),
    Sketcher.Constraint("DistanceY", 12, 2, -1, 1, Q("36 mm")),
    Sketcher.Constraint("DistanceX", 8, 2, 0, 2, Q("208.5 mm")),
    Sketcher.Constraint("DistanceX", 0, 2, -1, 1, Q("45.75 mm")),
    Sketcher.Constraint("DistanceY", 4, 2, -1, 1, Q("31.0976 mm")),
])
sketch9.setExpression("Constraints[42]", "Params.sketch9_width")
pocket7 = body.newObject("PartDesign::Pocket", "Pocket006")
pocket7.Profile = sketch9
pocket7.setExpression("Length", "Params.pocket7_length")
pocket7.Reversed = True
doc.recompute()

chamfer = body.newObject("PartDesign::Chamfer", "Chamfer")
chamfer.Base = (pocket7, edges_at(pocket7, [(-259.25, 12.5, -125), (-40.75, 12.5, -125)]))
chamfer.setExpression("Size", "Params.chamfer_size")
doc.recompute()

chamfer2 = body.newObject("PartDesign::Chamfer", "Chamfer001")
chamfer2.Base = (chamfer, edges_at(chamfer, [(-40.75, 12.5, -31.098), (-259.25, 12.5, -31)]))
chamfer2.setExpression("Size", "Params.chamfer2_size")

doc.recompute()
